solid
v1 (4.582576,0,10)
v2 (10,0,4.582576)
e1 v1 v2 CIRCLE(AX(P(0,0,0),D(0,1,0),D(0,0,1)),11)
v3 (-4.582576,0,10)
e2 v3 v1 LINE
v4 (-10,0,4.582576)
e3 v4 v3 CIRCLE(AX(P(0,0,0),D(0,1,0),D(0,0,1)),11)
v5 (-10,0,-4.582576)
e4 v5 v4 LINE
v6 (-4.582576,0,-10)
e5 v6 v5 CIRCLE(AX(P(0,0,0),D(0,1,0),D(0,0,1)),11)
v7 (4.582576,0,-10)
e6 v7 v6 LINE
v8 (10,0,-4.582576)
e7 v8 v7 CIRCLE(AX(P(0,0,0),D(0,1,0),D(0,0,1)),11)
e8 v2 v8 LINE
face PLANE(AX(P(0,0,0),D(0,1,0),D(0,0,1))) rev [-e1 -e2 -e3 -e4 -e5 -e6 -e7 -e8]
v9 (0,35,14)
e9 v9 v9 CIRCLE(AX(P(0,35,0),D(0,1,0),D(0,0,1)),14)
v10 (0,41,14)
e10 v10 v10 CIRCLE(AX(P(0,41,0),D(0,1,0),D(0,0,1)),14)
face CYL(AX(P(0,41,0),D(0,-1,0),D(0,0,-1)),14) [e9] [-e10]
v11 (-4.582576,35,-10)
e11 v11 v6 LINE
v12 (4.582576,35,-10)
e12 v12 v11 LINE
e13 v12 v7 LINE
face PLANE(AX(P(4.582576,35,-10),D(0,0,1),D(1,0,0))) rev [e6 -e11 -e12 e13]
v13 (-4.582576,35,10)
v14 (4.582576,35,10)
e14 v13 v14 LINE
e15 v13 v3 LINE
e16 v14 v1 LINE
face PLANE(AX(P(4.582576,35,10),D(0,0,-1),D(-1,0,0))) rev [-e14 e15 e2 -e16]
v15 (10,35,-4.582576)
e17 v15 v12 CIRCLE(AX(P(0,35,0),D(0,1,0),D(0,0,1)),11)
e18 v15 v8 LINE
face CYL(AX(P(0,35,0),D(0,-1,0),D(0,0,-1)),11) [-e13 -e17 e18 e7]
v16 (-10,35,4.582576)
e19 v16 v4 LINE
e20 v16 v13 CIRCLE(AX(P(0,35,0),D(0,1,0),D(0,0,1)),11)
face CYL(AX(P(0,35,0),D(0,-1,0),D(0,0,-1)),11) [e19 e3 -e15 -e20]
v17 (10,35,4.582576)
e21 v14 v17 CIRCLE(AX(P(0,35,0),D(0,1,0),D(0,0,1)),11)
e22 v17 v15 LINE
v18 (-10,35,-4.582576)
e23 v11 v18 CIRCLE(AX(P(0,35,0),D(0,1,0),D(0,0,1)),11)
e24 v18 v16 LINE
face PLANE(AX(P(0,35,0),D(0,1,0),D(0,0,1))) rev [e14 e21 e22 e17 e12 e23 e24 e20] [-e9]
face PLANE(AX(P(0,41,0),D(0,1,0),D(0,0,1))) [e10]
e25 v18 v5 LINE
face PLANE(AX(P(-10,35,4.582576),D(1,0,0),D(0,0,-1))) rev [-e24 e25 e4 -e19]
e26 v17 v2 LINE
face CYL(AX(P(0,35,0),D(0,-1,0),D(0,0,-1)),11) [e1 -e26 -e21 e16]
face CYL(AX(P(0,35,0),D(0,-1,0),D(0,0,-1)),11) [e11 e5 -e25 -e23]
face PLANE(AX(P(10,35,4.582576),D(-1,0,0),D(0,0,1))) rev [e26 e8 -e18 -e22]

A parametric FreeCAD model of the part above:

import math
import FreeCAD as App
import Part
import Sketcher
from FreeCAD import Vector

doc = App.newDocument("Part")
params = doc.addObject("Spreadsheet::Sheet", "Params")
for row, (alias, value) in enumerate([
    ("sketch1_radius", "11 mm"),
    ("pad1_length", "35 mm"),
    ("sketch2_diameter", "28 mm"),
    ("pad2_length", "6 mm"),
], start=1):
    params.set(f"A{row}", alias)
    params.set(f"B{row}", "=" + value)
    params.setAlias(f"B{row}", alias)

body = doc.addObject("PartDesign::Body", "Body")

# Sketch on XZ plane
sketch1 = doc.addObject("Sketcher::SketchObject", "Sketch")
body.addObject(sketch1)
sketch1.AttachmentSupport = (doc.XZ_Plane, [""])
sketch1.MapMode = "FlatFace"
sketch1.addGeometry(Part.LineSegment(Vector(-5, 10, 0), Vector(5, 10, 0)), False)
sketch1.addGeometry(Part.ArcOfCircle(Part.Circle(Vector(0, 0, 0), Vector(0, 0, 1), 11), math.radians(25), math.radians(65)), False)
sketch1.addGeometry(Part.LineSegment(Vector(10, 5, 0), Vector(10, -5, 0)), False)
sketch1.addGeometry(Part.ArcOfCircle(Part.Circle(Vector(0, 0, 0), Vector(0, 0, 1), 11), math.radians(-65), math.radians(-25)), False)
sketch1.addGeometry(Part.LineSegment(Vector(5, -10, 0), Vector(-5, -10, 0)), False)
sketch1.addGeometry(Part.ArcOfCircle(Part.Circle(Vector(0, 0, 0), Vector(0, 0, 1), 11), math.radians(-155), math.radians(-115)), False)
sketch1.addGeometry(Part.LineSegment(Vector(-10, -5, 0), Vector(-10, 5, 0)), False)
sketch1.addGeometry(Part.ArcOfCircle(Part.Circle(Vector(0, 0, 0), Vector(0, 0, 1), 11), math.radians(115), math.radians(155)), False)
sketch1.addConstraint(Sketcher.Constraint("Coincident", 0, 2, 1, 2))
sketch1.addConstraint(Sketcher.Constraint("Coincident", 1, 1, 2, 1))
sketch1.addConstraint(Sketcher.Constraint("Coincident", 2, 2, 3, 2))
sketch1.addConstraint(Sketcher.Constraint("Coincident", 3, 1, 4, 1))
sketch1.addConstraint(Sketcher.Constraint("Coincident", 4, 2, 5, 2))
sketch1.addConstraint(Sketcher.Constraint("Coincident", 5, 1, 6, 1))
sketch1.addConstraint(Sketcher.Constraint("Coincident", 6, 2, 7, 2))
sketch1.addConstraint(Sketcher.Constraint("Coincident", 7, 1, 0, 1))
sketch1.addConstraint(Sketcher.Constraint("Horizontal", 0))
sketch1.addConstraint(Sketcher.Constraint("Vertical", 2))
sketch1.addConstraint(Sketcher.Constraint("Horizontal", 4))
sketch1.addConstraint(Sketcher.Constraint("Vertical", 6))
sketch1.addConstraint(Sketcher.Constraint("Coincident", 1, 3, -1, 1))
sketch1.addConstraint(Sketcher.Constraint("Coincident", 3, 3, -1, 1))
sketch1.addConstraint(Sketcher.Constraint("Coincident", 5, 3, -1, 1))
sketch1.addConstraint(Sketcher.Constraint("Coincident", 7, 3, -1, 1))
sketch1.addConstraint(Sketcher.Constraint("Equal", 1, 3))
sketch1.addConstraint(Sketcher.Constraint("Equal", 3, 5))
sketch1.addConstraint(Sketcher.Constraint("Equal", 5, 7))
sketch1.addConstraint(Sketcher.Constraint("Horizontal", 2, 2, 5, 1))
sketch1.addConstraint(Sketcher.Constraint("Vertical", 0, 2, 3, 1))
sketch1.addConstraint(Sketcher.Constraint("Equal", 4, 2))
sketch1.addConstraint(Sketcher.Constraint("Radius", 1, 11.0))
sketch1.addConstraint(Sketcher.Constraint("DistanceY", -1, 1, 0, 2, 10.0))
sketch1.setExpression("Constraints[22]", "Params.sketch1_radius")
pad1 = doc.addObject("PartDesign::Pad", "Pad")
body.addObject(pad1)
pad1.Profile = sketch1
pad1.setExpression("Length", "Params.pad1_length")
pad1.Reversed = True

# Sketch on XZ plane
sketch2 = doc.addObject("Sketcher::SketchObject", "Sketch001")
body.addObject(sketch2)
sketch2.AttachmentSupport = (doc.XZ_Plane, [""])
sketch2.MapMode = "FlatFace"
sketch2.AttachmentOffset = App.Placement(Vector(0, 0, -35), App.Rotation())
sketch2.addGeometry(Part.Circle(Vector(0, 0, 0), Vector(0, 0, 1), 14), False)
sketch2.addConstraint(Sketcher.Constraint("Coincident", 0, 3, -1, 1))
sketch2.addConstraint(Sketcher.Constraint("Diameter", 0, 28.0))
sketch2.setExpression("Constraints[1]", "Params.sketch2_diameter")
pad2 = doc.addObject("PartDesign::Pad", "Pad001")
body.addObject(pad2)
pad2.Profile = sketch2
pad2.setExpression("Length", "Params.pad2_length")
pad2.Reversed = True

doc.recompute()
